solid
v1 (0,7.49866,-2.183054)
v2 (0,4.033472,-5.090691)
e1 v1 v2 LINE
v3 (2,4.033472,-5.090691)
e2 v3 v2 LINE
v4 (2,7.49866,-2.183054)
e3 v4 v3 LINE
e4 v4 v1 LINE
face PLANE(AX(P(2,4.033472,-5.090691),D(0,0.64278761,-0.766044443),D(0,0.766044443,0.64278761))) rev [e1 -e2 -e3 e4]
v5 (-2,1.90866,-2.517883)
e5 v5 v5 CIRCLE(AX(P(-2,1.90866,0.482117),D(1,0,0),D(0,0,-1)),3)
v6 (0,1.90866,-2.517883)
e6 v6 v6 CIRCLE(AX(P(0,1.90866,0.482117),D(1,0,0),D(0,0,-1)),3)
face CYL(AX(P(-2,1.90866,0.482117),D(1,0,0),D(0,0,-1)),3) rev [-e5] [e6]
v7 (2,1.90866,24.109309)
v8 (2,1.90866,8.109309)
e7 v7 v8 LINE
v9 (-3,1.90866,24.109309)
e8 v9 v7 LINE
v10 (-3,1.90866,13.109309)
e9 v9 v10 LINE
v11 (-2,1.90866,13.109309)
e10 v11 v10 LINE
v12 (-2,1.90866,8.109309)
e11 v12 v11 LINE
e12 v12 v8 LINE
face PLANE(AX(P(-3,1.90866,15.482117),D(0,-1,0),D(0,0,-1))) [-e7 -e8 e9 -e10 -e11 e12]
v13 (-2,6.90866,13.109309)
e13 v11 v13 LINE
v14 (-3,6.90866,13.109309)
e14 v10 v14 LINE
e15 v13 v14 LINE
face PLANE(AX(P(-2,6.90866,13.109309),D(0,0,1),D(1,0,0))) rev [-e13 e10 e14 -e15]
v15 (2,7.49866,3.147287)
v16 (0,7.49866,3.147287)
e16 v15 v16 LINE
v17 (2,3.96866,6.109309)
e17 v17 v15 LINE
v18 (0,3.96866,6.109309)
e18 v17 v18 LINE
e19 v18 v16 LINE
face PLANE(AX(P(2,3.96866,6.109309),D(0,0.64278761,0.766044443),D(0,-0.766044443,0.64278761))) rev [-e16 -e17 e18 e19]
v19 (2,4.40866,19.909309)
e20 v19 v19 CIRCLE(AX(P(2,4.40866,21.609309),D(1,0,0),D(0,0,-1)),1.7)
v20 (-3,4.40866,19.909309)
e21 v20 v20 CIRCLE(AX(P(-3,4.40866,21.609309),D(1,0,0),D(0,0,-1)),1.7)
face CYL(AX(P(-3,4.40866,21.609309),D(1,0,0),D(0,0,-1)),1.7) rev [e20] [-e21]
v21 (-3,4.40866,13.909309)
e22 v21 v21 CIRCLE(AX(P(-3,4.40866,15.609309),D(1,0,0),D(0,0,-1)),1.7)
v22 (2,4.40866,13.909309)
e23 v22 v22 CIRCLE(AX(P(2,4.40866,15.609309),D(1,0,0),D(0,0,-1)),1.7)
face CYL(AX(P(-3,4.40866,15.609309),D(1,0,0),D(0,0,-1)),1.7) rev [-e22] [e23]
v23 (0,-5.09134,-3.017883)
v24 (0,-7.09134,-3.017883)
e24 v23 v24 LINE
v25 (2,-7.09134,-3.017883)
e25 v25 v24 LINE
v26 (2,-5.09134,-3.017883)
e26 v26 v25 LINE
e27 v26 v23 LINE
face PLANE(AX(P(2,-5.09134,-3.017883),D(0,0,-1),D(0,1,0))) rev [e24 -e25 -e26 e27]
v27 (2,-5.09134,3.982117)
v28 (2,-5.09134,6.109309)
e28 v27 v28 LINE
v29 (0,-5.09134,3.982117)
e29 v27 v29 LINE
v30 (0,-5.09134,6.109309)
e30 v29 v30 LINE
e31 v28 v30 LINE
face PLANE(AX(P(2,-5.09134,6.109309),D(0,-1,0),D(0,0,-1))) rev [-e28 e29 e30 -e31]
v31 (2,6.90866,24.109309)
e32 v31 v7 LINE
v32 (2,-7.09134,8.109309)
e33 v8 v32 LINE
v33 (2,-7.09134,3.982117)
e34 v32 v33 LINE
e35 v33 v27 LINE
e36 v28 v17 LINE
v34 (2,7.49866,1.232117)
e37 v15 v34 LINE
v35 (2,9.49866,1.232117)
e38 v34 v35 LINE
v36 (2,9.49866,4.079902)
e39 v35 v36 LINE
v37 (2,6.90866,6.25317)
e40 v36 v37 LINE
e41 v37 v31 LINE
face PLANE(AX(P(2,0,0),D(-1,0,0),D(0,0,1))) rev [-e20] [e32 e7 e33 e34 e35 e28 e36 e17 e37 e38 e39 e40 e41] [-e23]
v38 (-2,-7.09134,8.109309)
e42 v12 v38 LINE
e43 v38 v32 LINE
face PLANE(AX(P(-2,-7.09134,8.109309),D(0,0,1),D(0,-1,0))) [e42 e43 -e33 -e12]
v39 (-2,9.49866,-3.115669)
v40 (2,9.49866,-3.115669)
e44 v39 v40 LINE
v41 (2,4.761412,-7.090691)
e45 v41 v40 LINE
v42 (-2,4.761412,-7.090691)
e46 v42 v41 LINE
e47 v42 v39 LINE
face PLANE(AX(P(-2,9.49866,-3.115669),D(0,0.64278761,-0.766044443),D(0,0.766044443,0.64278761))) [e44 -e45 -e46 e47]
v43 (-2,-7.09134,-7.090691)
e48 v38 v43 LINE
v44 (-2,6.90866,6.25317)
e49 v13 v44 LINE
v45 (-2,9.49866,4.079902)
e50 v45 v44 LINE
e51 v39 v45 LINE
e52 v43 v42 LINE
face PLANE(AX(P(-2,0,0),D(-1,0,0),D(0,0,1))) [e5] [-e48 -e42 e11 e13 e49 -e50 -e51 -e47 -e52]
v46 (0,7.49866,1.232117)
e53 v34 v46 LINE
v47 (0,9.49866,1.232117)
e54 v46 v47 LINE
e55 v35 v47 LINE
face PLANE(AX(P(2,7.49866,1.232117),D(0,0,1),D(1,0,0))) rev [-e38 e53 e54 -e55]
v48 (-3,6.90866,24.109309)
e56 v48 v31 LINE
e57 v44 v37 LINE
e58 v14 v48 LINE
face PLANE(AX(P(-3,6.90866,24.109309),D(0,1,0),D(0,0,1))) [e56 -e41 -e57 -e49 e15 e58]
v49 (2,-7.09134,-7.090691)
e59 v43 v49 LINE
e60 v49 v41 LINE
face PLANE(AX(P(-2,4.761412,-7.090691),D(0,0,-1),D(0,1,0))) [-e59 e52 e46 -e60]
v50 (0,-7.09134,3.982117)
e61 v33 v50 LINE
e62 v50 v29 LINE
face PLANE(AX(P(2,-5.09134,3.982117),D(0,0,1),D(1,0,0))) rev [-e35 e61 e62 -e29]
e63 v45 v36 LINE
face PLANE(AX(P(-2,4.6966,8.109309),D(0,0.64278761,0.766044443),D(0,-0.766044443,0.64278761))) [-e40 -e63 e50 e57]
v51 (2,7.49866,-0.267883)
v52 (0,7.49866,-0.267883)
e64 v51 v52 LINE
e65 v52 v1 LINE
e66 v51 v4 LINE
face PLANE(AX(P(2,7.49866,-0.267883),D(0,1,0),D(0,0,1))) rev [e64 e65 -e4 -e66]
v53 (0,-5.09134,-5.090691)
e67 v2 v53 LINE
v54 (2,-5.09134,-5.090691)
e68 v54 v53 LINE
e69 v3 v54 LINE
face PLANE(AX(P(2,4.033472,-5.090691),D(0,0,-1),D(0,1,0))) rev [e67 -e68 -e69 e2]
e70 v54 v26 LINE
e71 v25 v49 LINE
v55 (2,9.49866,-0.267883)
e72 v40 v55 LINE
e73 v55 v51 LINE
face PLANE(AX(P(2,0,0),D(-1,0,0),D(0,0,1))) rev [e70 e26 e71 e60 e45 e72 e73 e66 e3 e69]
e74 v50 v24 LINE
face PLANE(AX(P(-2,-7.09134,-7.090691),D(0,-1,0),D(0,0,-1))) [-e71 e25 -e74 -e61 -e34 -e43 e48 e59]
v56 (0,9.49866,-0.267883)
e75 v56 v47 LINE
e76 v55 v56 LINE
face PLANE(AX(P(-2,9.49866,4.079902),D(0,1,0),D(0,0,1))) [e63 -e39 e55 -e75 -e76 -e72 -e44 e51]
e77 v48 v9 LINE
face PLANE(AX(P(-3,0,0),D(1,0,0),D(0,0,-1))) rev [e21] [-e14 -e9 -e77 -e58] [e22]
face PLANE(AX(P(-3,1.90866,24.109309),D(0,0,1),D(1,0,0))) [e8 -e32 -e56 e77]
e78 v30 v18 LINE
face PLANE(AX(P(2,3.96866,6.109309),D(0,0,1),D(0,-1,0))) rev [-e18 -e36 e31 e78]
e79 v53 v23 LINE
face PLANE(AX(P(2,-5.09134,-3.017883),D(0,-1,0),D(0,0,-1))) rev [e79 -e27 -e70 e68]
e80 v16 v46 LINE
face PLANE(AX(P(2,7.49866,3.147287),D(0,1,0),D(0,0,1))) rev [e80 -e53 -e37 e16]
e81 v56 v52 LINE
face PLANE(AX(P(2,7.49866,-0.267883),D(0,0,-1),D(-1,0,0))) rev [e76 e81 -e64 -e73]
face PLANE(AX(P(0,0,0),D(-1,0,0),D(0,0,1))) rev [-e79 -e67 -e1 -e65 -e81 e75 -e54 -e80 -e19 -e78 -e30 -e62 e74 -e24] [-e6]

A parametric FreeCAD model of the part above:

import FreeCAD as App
import Part
import Sketcher
Q = App.Units.Quantity

doc = App.newDocument("Part")
body = doc.addObject("PartDesign::Body", "Body")

sketch1 = doc.addObject("Sketcher::SketchObject", "Sketch")
body.addObject(sketch1)
sketch1.AttachmentSupport = (doc.YZ_Plane, [""])
sketch1.MapMode = "FlatFace"
sketch1.addGeometry(Part.LineSegment(App.Vector(4.6966, 8.109309, 0), App.Vector(-7.09134, 8.109309, 0)), False)
sketch1.addGeometry(Part.LineSegment(App.Vector(-7.09134, 8.109309, 0), App.Vector(-7.09134, -7.090691, 0)), False)
sketch1.addGeometry(Part.LineSegment(App.Vector(-7.09134, -7.090691, 0), App.Vector(4.761412, -7.090691, 0)), False)
sketch1.addGeometry(Part.LineSegment(App.Vector(4.761412, -7.090691, 0), App.Vector(9.49866, -3.115669, 0)), False)
sketch1.addGeometry(Part.LineSegment(App.Vector(9.49866, -3.115669, 0), App.Vector(9.49866, 4.079902, 0)), False)
sketch1.addGeometry(Part.LineSegment(App.Vector(9.49866, 4.079902, 0), App.Vector(4.6966, 8.109309, 0)), False)
sketch1.addConstraint(Sketcher.Constraint("Coincident", 0, 2, 1, 1))
sketch1.addConstraint(Sketcher.Constraint("Coincident", 1, 2, 2, 1))
sketch1.addConstraint(Sketcher.Constraint("Coincident", 2, 2, 3, 1))
sketch1.addConstraint(Sketcher.Constraint("Coincident", 3, 2, 4, 1))
sketch1.addConstraint(Sketcher.Constraint("Coincident", 4, 2, 5, 1))
sketch1.addConstraint(Sketcher.Constraint("Coincident", 5, 2, 0, 1))
sketch1.addConstraint(Sketcher.Constraint("Horizontal", 0))
sketch1.addConstraint(Sketcher.Constraint("Vertical", 1))
sketch1.addConstraint(Sketcher.Constraint("Horizontal", 2))
sketch1.addConstraint(Sketcher.Constraint("Vertical", 4))
sketch1.addConstraint(Sketcher.Constraint("Angle", 3, Q("40 deg")))
sketch1.addConstraint(Sketcher.Constraint("Angle", 5, Q("140 deg")))
sketch1.addConstraint(Sketcher.Constraint("DistanceY", 1, 2, 1, 1, 15.2))
sketch1.addConstraint(Sketcher.Constraint("DistanceX", 1, 2, 3, 2, 16.59))
sketch1.addConstraint(Sketcher.Constraint("DistanceX", 0, 2, 0, 1, 11.78794))
sketch1.addConstraint(Sketcher.Constraint("DistanceY", 4, 1, 4, 2, 7.195571))
sketch1.addConstraint(Sketcher.Constraint("DistanceX", -1, 1, 5, 2, 4.6966))
sketch1.addConstraint(Sketcher.Constraint("DistanceY", -1, 1, 0, 2, 8.109309))
pad1 = doc.addObject("PartDesign::Pad", "Pad")
body.addObject(pad1)
pad1.Profile = sketch1
pad1.Length = 2
pad1.Reversed = True

sketch2 = doc.addObject("Sketcher::SketchObject", "Sketch001")
body.addObject(sketch2)
sketch2.AttachmentSupport = (doc.YZ_Plane, [""])
sketch2.MapMode = "FlatFace"
sketch2.addGeometry(Part.LineSegment(App.Vector(3.96866, 6.109309, 0), App.Vector(7.49866, 3.147287, 0)), False)
sketch2.addGeometry(Part.LineSegment(App.Vector(7.49866, 3.147287, 0), App.Vector(7.49866, 1.232117, 0)), False)
sketch2.addGeometry(Part.LineSegment(App.Vector(7.49866, 1.232117, 0), App.Vector(9.49866, 1.232117, 0)), False)
sketch2.addGeometry(Part.LineSegment(App.Vector(9.49866, 1.232117, 0), App.Vector(9.49866, 4.079902, 0)), False)
sketch2.addGeometry(Part.LineSegment(App.Vector(9.49866, 4.079902, 0), App.Vector(4.6966, 8.109309, 0)), False)
sketch2.addGeometry(Part.LineSegment(App.Vector(4.6966, 8.109309, 0), App.Vector(-7.09134, 8.109309, 0)), False)
sketch2.addGeometry(Part.LineSegment(App.Vector(-7.09134, 8.109309, 0), App.Vector(-7.09134, 3.982117, 0)), False)
sketch2.addGeometry(Part.LineSegment(App.Vector(-7.09134, 3.982117, 0), App.Vector(-5.09134, 3.982117, 0)), False)
sketch2.addGeometry(Part.LineSegment(App.Vector(-5.09134, 3.982117, 0), App.Vector(-5.09134, 6.109309, 0)), False)
sketch2.addGeometry(Part.LineSegment(App.Vector(-5.09134, 6.109309, 0), App.Vector(3.96866, 6.109309, 0)), False)
sketch2.addGeometry(Part.LineSegment(App.Vector(4.033472, -5.090691, 0), App.Vector(-5.09134, -5.090691, 0)), False)
sketch2.addGeometry(Part.LineSegment(App.Vector(-5.09134, -5.090691, 0), App.Vector(-5.09134, -3.017883, 0)), False)
sketch2.addGeometry(Part.LineSegment(App.Vector(-5.09134, -3.017883, 0), App.Vector(-7.09134, -3.017883, 0)), False)
sketch2.addGeometry(Part.LineSegment(App.Vector(-7.09134, -3.017883, 0), App.Vector(-7.09134, -7.090691, 0)), False)
sketch2.addGeometry(Part.LineSegment(App.Vector(-7.09134, -7.090691, 0), App.Vector(4.761412, -7.090691, 0)), False)
sketch2.addGeometry(Part.LineSegment(App.Vector(4.761412, -7.090691, 0), App.Vector(9.49866, -3.115669, 0)), False)
sketch2.addGeometry(Part.LineSegment(App.Vector(9.49866, -3.115669, 0), App.Vector(9.49866, -0.267883, 0)), False)
sketch2.addGeometry(Part.LineSegment(App.Vector(9.49866, -0.267883, 0), App.Vector(7.49866, -0.267883, 0)), False)
sketch2.addGeometry(Part.LineSegment(App.Vector(7.49866, -0.267883, 0), App.Vector(7.49866, -2.183054, 0)), False)
sketch2.addGeometry(Part.LineSegment(App.Vector(7.49866, -2.183054, 0), App.Vector(4.033472, -5.090691, 0)), False)
sketch2.addConstraint(Sketcher.Constraint("Coincident", 0, 2, 1, 1))
sketch2.addConstraint(Sketcher.Constraint("Coincident", 1, 2, 2, 1))
sketch2.addConstraint(Sketcher.Constraint("Coincident", 2, 2, 3, 1))
sketch2.addConstraint(Sketcher.Constraint("Coincident", 3, 2, 4, 1))
sketch2.addConstraint(Sketcher.Constraint("Coincident", 4, 2, 5, 1))
sketch2.addConstraint(Sketcher.Constraint("Coincident", 5, 2, 6, 1))
sketch2.addConstraint(Sketcher.Constraint("Coincident", 6, 2, 7, 1))
sketch2.addConstraint(Sketcher.Constraint("Coincident", 7, 2, 8, 1))
sketch2.addConstraint(Sketcher.Constraint("Coincident", 8, 2, 9, 1))
sketch2.addConstraint(Sketcher.Constraint("Coincident", 9, 2, 0, 1))
sketch2.addConstraint(Sketcher.Constraint("Coincident", 10, 2, 11, 1))
sketch2.addConstraint(Sketcher.Constraint("Coincident", 11, 2, 12, 1))
sketch2.addConstraint(Sketcher.Constraint("Coincident", 12, 2, 13, 1))
sketch2.addConstraint(Sketcher.Constraint("Coincident", 13, 2, 14, 1))
sketch2.addConstraint(Sketcher.Constraint("Coincident", 14, 2, 15, 1))
sketch2.addConstraint(Sketcher.Constraint("Coincident", 15, 2, 16, 1))
sketch2.addConstraint(Sketcher.Constraint("Coincident", 16, 2, 17, 1))
sketch2.addConstraint(Sketcher.Constraint("Coincident", 17, 2, 18, 1))
sketch2.addConstraint(Sketcher.Constraint("Coincident", 18, 2, 19, 1))
sketch2.addConstraint(Sketcher.Constraint("Coincident", 19, 2, 10, 1))
sketch2.addConstraint(Sketcher.Constraint("Vertical", 1))
sketch2.addConstraint(Sketcher.Constraint("Horizontal", 2))
sketch2.addConstraint(Sketcher.Constraint("Vertical", 3))
sketch2.addConstraint(Sketcher.Constraint("Horizontal", 5))
sketch2.addConstraint(Sketcher.Constraint("Vertical", 6))
sketch2.addConstraint(Sketcher.Constraint("Horizontal", 7))
sketch2.addConstraint(Sketcher.Constraint("Vertical", 8))
sketch2.addConstraint(Sketcher.Constraint("Horizontal", 9))
sketch2.addConstraint(Sketcher.Constraint("Horizontal", 10))
sketch2.addConstraint(Sketcher.Constraint("Vertical", 11))
sketch2.addConstraint(Sketcher.Constraint("Horizontal", 12))
sketch2.addConstraint(Sketcher.Constraint("Vertical", 13))
sketch2.addConstraint(Sketcher.Constraint("Horizontal", 14))
sketch2.addConstraint(Sketcher.Constraint("Vertical", 16))
sketch2.addConstraint(Sketcher.Constraint("Horizontal", 17))
sketch2.addConstraint(Sketcher.Constraint("Vertical", 18))
sketch2.addConstraint(Sketcher.Constraint("Parallel", 0, 4))
sketch2.addConstraint(Sketcher.Constraint("Parallel", 15, 19))
sketch2.addConstraint(Sketcher.Constraint("Vertical", 8, 2, 10, 2))
sketch2.addConstraint(Sketcher.Constraint("Vertical", 6, 2, 12, 2))
sketch2.addConstraint(Sketcher.Constraint("Vertical", 3, 2, 15, 2))
sketch2.addConstraint(Sketcher.Constraint("Vertical", 1, 2, 17, 2))
sketch2.addConstraint(Sketcher.Constraint("Equal", 2, 7))
sketch2.addConstraint(Sketcher.Constraint("Equal", 3, 16))
sketch2.addConstraint(Sketcher.Constraint("Equal", 1, 18))
sketch2.addConstraint(Sketcher.Constraint("DistanceX", 2, 1, 2, 2, 2.0))
sketch2.addConstraint(Sketcher.Constraint("Angle", 0, Q("-40 deg")))
sketch2.addConstraint(Sketcher.Constraint("Angle", 15, Q("40 deg")))
sketch2.addConstraint(Sketcher.Constraint("DistanceY", 8, 2, 5, 2, 2.0))
sketch2.addConstraint(Sketcher.Constraint("DistanceY", 11, 2, 7, 2, 7.0))
sketch2.addConstraint(Sketcher.Constraint("DistanceY", 13, 2, 10, 2, 2.0))
sketch2.addConstraint(Sketcher.Constraint("DistanceX", 9, 1, 9, 2, 9.06))
sketch2.addConstraint(Sketcher.Constraint("DistanceY", 10, 2, 8, 2, 11.2))
sketch2.addConstraint(Sketcher.Constraint("DistanceY", 16, 2, 2, 2, 1.5))
sketch2.addConstraint(Sketcher.Constraint("DistanceX", 5, 2, 0, 2, 14.59))
sketch2.addConstraint(Sketcher.Constraint("DistanceY", 1, 2, 6, 2, 2.75))
sketch2.addConstraint(Sketcher.Constraint("DistanceX", 5, 2, 5, 1, 11.78794))
sketch2.addConstraint(Sketcher.Constraint("DistanceY", 1, 2, 1, 1, 1.91517))
sketch2.addConstraint(Sketcher.Constraint("DistanceX", -1, 1, 4, 2, 4.6966))
sketch2.addConstraint(Sketcher.Constraint("DistanceY", -1, 1, 4, 2, 8.109309))
pad2 = doc.addObject("PartDesign::Pad", "Pad001")
body.addObject(pad2)
pad2.Profile = sketch2
pad2.Length = 2

sketch3 = doc.addObject("Sketcher::SketchObject", "Sketch002")
body.addObject(sketch3)
sketch3.AttachmentSupport = (doc.YZ_Plane, [""])
sketch3.MapMode = "FlatFace"
sketch3.addGeometry(Part.Circle(App.Vector(1.90866, 0.482117, 0), App.Vector(0, 0, 1), 3), False)
sketch3.addConstraint(Sketcher.Constraint("Diameter", 0, 6.0))
sketch3.addConstraint(Sketcher.Constraint("DistanceX", -1, 1, 0, 3, 1.90866))
sketch3.addConstraint(Sketcher.Constraint("DistanceY", -1, 1, 0, 3, 0.482117))
pocket1 = doc.addObject("PartDesign::Pocket", "Pocket")
body.addObject(pocket1)
pocket1.Profile = sketch3
pocket1.Length = 2

sketch4 = doc.addObject("Sketcher::SketchObject", "Sketch003")
body.addObject(sketch4)
sketch4.AttachmentSupport = (doc.YZ_Plane, [""])
sketch4.MapMode = "FlatFace"
sketch4.AttachmentOffset = App.Placement(App.Vector(0, 0, 2), App.Rotation())
sketch4.addGeometry(Part.LineSegment(App.Vector(1.90866, 8.109309, 0), App.Vector(4.6966, 8.109309, 0)), False)
sketch4.addGeometry(Part.LineSegment(App.Vector(4.6966, 8.109309, 0), App.Vector(6.90866, 6.25317, 0)), False)
sketch4.addGeometry(Part.LineSegment(App.Vector(6.90866, 6.25317, 0), App.Vector(6.90866, 24.109309, 0)), False)
sketch4.addGeometry(Part.LineSegment(App.Vector(6.90866, 24.109309, 0), App.Vector(1.90866, 24.109309, 0)), False)
sketch4.addGeometry(Part.LineSegment(App.Vector(1.90866, 24.109309, 0), App.Vector(1.90866, 8.109309, 0)), False)
sketch4.addGeometry(Part.Circle(App.Vector(4.40866, 21.609309, 0), App.Vector(0, 0, 1), 1.7), False)
sketch4.addGeometry(Part.Circle(App.Vector(4.40866, 15.609309, 0), App.Vector(0, 0, 1), 1.7), False)
sketch4.addConstraint(Sketcher.Constraint("Coincident", 0, 2, 1, 1))
sketch4.addConstraint(Sketcher.Constraint("Coincident", 1, 2, 2, 1))
sketch4.addConstraint(Sketcher.Constraint("Coincident", 2, 2, 3, 1))
sketch4.addConstraint(Sketcher.Constraint("Coincident", 3, 2, 4, 1))
sketch4.addConstraint(Sketcher.Constraint("Coincident", 4, 2, 0, 1))
sketch4.addConstraint(Sketcher.Constraint("Horizontal", 0))
sketch4.addConstraint(Sketcher.Constraint("Vertical", 2))
sketch4.addConstraint(Sketcher.Constraint("Horizontal", 3))
sketch4.addConstraint(Sketcher.Constraint("Vertical", 4))
sketch4.addConstraint(Sketcher.Constraint("Equal", 5, 6))
sketch4.addConstraint(Sketcher.Constraint("Vertical", 5, 3, 6, 3))
sketch4.addConstraint(Sketcher.Constraint("Diameter", 5, 3.4))
sketch4.addConstraint(Sketcher.Constraint("DistanceX", 3, 2, 3, 1, 5.0))
sketch4.addConstraint(Sketcher.Constraint("DistanceY", 4, 2, 4, 1, 16.0))
sketch4.addConstraint(Sketcher.Constraint("Angle", 1, Q("-40 deg")))
sketch4.addConstraint(Sketcher.Constraint("DistanceY", 6, 3, 5, 3, 6.0))
sketch4.addConstraint(Sketcher.Constraint("DistanceY", 0, 2, 6, 3, 7.5))
sketch4.addConstraint(Sketcher.Constraint("DistanceX", 6, 3, 1, 2, 2.5))
sketch4.addConstraint(Sketcher.Constraint("DistanceX", 0, 1, 0, 2, 2.78794))
sketch4.addConstraint(Sketcher.Constraint("DistanceX", -1, 1, 0, 2, 4.6966))
sketch4.addConstraint(Sketcher.Constraint("DistanceY", -1, 1, 5, 3, 21.609309))
pad3 = doc.addObject("PartDesign::Pad", "Pad002")
body.addObject(pad3)
pad3.Profile = sketch4
pad3.Length = 5
pad3.Reversed = True

sketch5 = doc.addObject("Sketcher::SketchObject", "Sketch004")
body.addObject(sketch5)
sketch5.AttachmentSupport = (doc.YZ_Plane, [""])
sketch5.MapMode = "FlatFace"
sketch5.AttachmentOffset = App.Placement(App.Vector(0, 0, -3), App.Rotation())
sketch5.addGeometry(Part.LineSegment(App.Vector(6.90866, 6.25317, 0), App.Vector(4.6966, 8.109309, 0)), False)
sketch5.addGeometry(Part.LineSegment(App.Vector(4.6966, 8.109309, 0), App.Vector(1.90866, 8.109309, 0)), False)
sketch5.addGeometry(Part.LineSegment(App.Vector(1.90866, 8.109309, 0), App.Vector(1.90866, 13.109309, 0)), False)
sketch5.addGeometry(Part.LineSegment(App.Vector(1.90866, 13.109309, 0), App.Vector(6.90866, 13.109309, 0)), False)
sketch5.addGeometry(Part.LineSegment(App.Vector(6.90866, 13.109309, 0), App.Vector(6.90866, 6.25317, 0)), False)
sketch5.addConstraint(Sketcher.Constraint("Coincident", 0, 2, 1, 1))
sketch5.addConstraint(Sketcher.Constraint("Coincident", 1, 2, 2, 1))
sketch5.addConstraint(Sketcher.Constraint("Coincident", 2, 2, 3, 1))
sketch5.addConstraint(Sketcher.Constraint("Coincident", 3, 2, 4, 1))
sketch5.addConstraint(Sketcher.Constraint("Coincident", 4, 2, 0, 1))
sketch5.addConstraint(Sketcher.Constraint("Horizontal", 1))
sketch5.addConstraint(Sketcher.Constraint("Vertical", 2))
sketch5.addConstraint(Sketcher.Constraint("Horizontal", 3))
sketch5.addConstraint(Sketcher.Constraint("Vertical", 4))
sketch5.addConstraint(Sketcher.Constraint("Equal", 3, 2))
sketch5.addConstraint(Sketcher.Constraint("DistanceX", 3, 1, 3, 2, 5.0))
sketch5.addConstraint(Sketcher.Constraint("Angle", 0, Q("140 deg")))
sketch5.addConstraint(Sketcher.Constraint("DistanceX", 1, 2, 1, 1, 2.78794))
sketch5.addConstraint(Sketcher.Constraint("DistanceX", -1, 1, 0, 2, 4.6966))
sketch5.addConstraint(Sketcher.Constraint("DistanceY", -1, 1, 0, 2, 8.109309))
pocket2 = doc.addObject("PartDesign::Pocket", "Pocket001")
body.addObject(pocket2)
pocket2.Profile = sketch5
pocket2.Length = 1
pocket2.Reversed = True

doc.recompute()
